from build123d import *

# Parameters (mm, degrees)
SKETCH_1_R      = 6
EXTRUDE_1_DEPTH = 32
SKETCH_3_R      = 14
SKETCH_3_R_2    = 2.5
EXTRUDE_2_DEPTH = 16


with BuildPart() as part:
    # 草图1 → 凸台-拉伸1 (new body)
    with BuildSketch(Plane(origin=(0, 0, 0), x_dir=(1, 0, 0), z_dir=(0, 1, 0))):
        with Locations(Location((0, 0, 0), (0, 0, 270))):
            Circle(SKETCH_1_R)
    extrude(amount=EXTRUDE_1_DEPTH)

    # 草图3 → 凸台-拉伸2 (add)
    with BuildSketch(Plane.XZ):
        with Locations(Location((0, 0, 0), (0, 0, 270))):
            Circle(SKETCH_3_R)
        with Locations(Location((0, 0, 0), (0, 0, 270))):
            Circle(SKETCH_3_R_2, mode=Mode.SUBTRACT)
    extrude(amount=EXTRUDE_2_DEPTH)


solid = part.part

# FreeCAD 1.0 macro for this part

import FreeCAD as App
import Part
import Sketcher
from FreeCAD import Vector

doc = App.newDocument("Part")
body = doc.addObject("PartDesign::Body", "Body")

# Sketch on XZ plane
sketch1 = body.newObject("Sketcher::SketchObject", "Sketch")
sketch1.AttachmentSupport = (doc.getObject("XZ_Plane"), [""])
sketch1.MapMode = "FlatFace"
sketch1.addGeometry(Part.Circle(Vector(0, 0, 0), Vector(0, 0, 1), 6), False)
sketch1.addConstraint(Sketcher.Constraint("Coincident", 0, 3, -1, 1))
sketch1.addConstraint(Sketcher.Constraint("Diameter", 0, 12.0))
pad1 = body.newObject("PartDesign::Pad", "Pad")
pad1.Profile = sketch1
pad1.Length = 32
pad1.Reversed = True

# Sketch on XZ plane
sketch2 = body.newObject("Sketcher::SketchObject", "Sketch001")
sketch2.AttachmentSupport = (doc.getObject("XZ_Plane"), [""])
sketch2.MapMode = "FlatFace"
sketch2.addGeometry(Part.Circle(Vector(0, 0, 0), Vector(0, 0, 1), 14), False)
sketch2.addGeometry(Part.Circle(Vector(0, 0, 0), Vector(0, 0, 1), 2.5), False)
sketch2.addConstraint(Sketcher.Constraint("Coincident", 0, 3, -1, 1))
sketch2.addConstraint(Sketcher.Constraint("Coincident", 1, 3, -1, 1))
sketch2.addConstraint(Sketcher.Constraint("Diameter", 0, 28.0))
sketch2.addConstraint(Sketcher.Constraint("Diameter", 1, 5.0))
pad2 = body.newObject("PartDesign::Pad", "Pad001")
pad2.Profile = sketch2
pad2.Length = 16

doc.recompute()
